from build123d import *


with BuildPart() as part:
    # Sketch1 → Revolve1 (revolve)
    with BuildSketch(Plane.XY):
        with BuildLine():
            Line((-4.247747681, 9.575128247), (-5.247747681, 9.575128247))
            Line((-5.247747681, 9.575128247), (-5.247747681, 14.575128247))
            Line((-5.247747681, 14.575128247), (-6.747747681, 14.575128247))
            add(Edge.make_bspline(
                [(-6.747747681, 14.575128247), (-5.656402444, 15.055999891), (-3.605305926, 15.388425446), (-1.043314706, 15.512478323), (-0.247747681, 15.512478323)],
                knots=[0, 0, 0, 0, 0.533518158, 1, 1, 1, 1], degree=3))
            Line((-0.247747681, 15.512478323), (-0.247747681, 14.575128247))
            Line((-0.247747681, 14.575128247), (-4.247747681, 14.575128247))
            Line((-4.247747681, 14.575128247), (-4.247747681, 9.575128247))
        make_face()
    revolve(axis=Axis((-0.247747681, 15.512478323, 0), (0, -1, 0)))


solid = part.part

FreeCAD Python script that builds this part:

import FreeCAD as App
import Part
import Sketcher
Q = App.Units.Quantity

doc = App.newDocument("Part")
params = doc.addObject("Spreadsheet::Sheet", "Params")
for row, (alias, value) in enumerate([
    ("sketch1_width", "1 mm"),
    ("sketch1_width2", "4 mm"),
    ("sketch1_height", "5 mm"),
    ("revolution_angle", "360 deg"),
], start=1):
    params.set(f"A{row}", alias)
    params.set(f"B{row}", "=" + value)
    params.setAlias(f"B{row}", alias)

body = doc.addObject("PartDesign::Body", "Body")

sketch1 = doc.addObject("Sketcher::SketchObject", "Sketch")
body.addObject(sketch1)
sketch1.AttachmentSupport = (doc.XY_Plane, [""])
sketch1.MapMode = "FlatFace"
sketch1.addGeometry(Part.LineSegment(App.Vector(-5.247748, 9.575128, 0), App.Vector(-4.247748, 9.575128, 0)), False)
sketch1.addGeometry(Part.LineSegment(App.Vector(-4.247748, 9.575128, 0), App.Vector(-4.247748, 14.575128, 0)), False)
sketch1.addGeometry(Part.LineSegment(App.Vector(-4.247748, 14.575128, 0), App.Vector(-0.247748, 14.575128, 0)), False)
sketch1.addGeometry(Part.LineSegment(App.Vector(-0.247748, 14.575128, 0), App.Vector(-0.247748, 15.512478, 0)), False)
sketch1.addGeometry(Part.BSplineCurve([App.Vector(-6.747748, 14.575128, 0), App.Vector(-5.656402, 15.056, 0), App.Vector(-3.605306, 15.388425, 0), App.Vector(-1.043315, 15.512478, 0), App.Vector(-0.247748, 15.512478, 0)], [4, 1, 4], [0, 0.533518158, 1], False, 3, [1, 1, 1, 1, 1], False), False)
sketch1.addGeometry(Part.LineSegment(App.Vector(-6.747748, 14.575128, 0), App.Vector(-5.247748, 14.575128, 0)), False)
sketch1.addGeometry(Part.LineSegment(App.Vector(-5.247748, 14.575128, 0), App.Vector(-5.247748, 9.575128, 0)), False)
sketch1.addGeometry(Part.LineSegment(App.Vector(-0.247748, 15.512478, 0), App.Vector(-0.247748, 9.575128, 0)), True)
sketch1.addConstraint(Sketcher.Constraint("Block", 4))
sketch1.addConstraint(Sketcher.Constraint("Coincident", 0, 2, 1, 1))
sketch1.addConstraint(Sketcher.Constraint("Coincident", 1, 2, 2, 1))
sketch1.addConstraint(Sketcher.Constraint("Coincident", 2, 2, 3, 1))
sketch1.addConstraint(Sketcher.Constraint("Coincident", 3, 2, 4, 2))
sketch1.addConstraint(Sketcher.Constraint("Coincident", 4, 1, 5, 1))
sketch1.addConstraint(Sketcher.Constraint("Coincident", 5, 2, 6, 1))
sketch1.addConstraint(Sketcher.Constraint("Coincident", 6, 2, 0, 1))
sketch1.addConstraint(Sketcher.Constraint("Horizontal", 0))
sketch1.addConstraint(Sketcher.Constraint("Vertical", 1))
sketch1.addConstraint(Sketcher.Constraint("Horizontal", 2))
sketch1.addConstraint(Sketcher.Constraint("Vertical", 3))
sketch1.addConstraint(Sketcher.Constraint("Horizontal", 5))
sketch1.addConstraint(Sketcher.Constraint("Vertical", 6))
sketch1.addConstraint(Sketcher.Constraint("Vertical", 7))
sketch1.addConstraint(Sketcher.Constraint("Coincident", 7, 1, 3, 2))
sketch1.addConstraint(Sketcher.Constraint("Horizontal", 2, 2, 5, 2))
sketch1.addConstraint(Sketcher.Constraint("Horizontal", 6, 2, 7, 2))
sketch1.addConstraint(Sketcher.Constraint("DistanceX", 0, 1, 0, 2, Q("1 mm")))
sketch1.addConstraint(Sketcher.Constraint("DistanceX", 2, 1, 2, 2, Q("4 mm")))
sketch1.addConstraint(Sketcher.Constraint("DistanceY", 1, 1, 1, 2, Q("5 mm")))
sketch1.setExpression("Constraints[18]", "Params.sketch1_width")
sketch1.setExpression("Constraints[19]", "Params.sketch1_width2")
sketch1.setExpression("Constraints[20]", "Params.sketch1_height")
revolution = doc.addObject("PartDesign::Revolution", "Revolution")
body.addObject(revolution)
revolution.Profile = sketch1
revolution.ReferenceAxis = (sketch1, ["Axis0"])
revolution.setExpression("Angle", "Params.revolution_angle")

doc.recompute()
